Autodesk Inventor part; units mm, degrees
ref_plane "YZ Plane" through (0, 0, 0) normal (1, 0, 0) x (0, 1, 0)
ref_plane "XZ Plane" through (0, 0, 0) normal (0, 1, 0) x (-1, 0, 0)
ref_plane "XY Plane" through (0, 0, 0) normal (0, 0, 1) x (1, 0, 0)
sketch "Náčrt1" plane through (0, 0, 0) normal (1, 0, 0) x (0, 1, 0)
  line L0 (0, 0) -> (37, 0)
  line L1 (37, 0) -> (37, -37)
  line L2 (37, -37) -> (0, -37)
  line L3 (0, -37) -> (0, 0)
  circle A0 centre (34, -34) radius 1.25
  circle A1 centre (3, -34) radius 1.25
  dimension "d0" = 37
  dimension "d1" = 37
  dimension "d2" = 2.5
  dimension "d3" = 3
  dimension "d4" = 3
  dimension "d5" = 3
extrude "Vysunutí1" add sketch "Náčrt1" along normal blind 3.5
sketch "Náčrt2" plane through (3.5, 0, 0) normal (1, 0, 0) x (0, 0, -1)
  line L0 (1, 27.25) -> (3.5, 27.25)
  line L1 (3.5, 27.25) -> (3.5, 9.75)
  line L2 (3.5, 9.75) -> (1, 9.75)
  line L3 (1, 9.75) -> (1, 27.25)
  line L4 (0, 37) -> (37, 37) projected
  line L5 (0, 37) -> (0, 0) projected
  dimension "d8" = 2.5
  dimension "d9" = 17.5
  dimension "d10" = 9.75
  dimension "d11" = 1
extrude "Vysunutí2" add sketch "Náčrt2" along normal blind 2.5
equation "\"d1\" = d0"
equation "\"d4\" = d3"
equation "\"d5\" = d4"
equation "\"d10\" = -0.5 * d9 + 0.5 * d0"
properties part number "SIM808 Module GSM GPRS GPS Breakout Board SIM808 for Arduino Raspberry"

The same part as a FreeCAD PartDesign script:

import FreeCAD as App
import Part
import Sketcher
Q = App.Units.Quantity

doc = App.newDocument("Part")
body = doc.addObject("PartDesign::Body", "Body")

sketch1 = body.newObject("Sketcher::SketchObject", "Sketch")
sketch1.AttachmentSupport = (doc.getObject("YZ_Plane"), [""])
sketch1.MapMode = "FlatFace"
sketch1.addGeometry([
    Part.LineSegment(App.Vector(37, 0, 0), App.Vector(0, 0, 0)),
    Part.LineSegment(App.Vector(0, 0, 0), App.Vector(0, -37, 0)),
    Part.LineSegment(App.Vector(0, -37, 0), App.Vector(37, -37, 0)),
    Part.LineSegment(App.Vector(37, -37, 0), App.Vector(37, 0, 0)),
    Part.Circle(App.Vector(3, -34, 0), App.Vector(0, 0, 1), 1.2),
    Part.Circle(App.Vector(34, -34, 0), App.Vector(0, 0, 1), 1.2),
], False)
sketch1.addConstraint([
    Sketcher.Constraint("Coincident", 0, 2, 1, 1),
    Sketcher.Constraint("Coincident", 1, 2, 2, 1),
    Sketcher.Constraint("Coincident", 2, 2, 3, 1),
    Sketcher.Constraint("Coincident", 3, 2, 0, 1),
    Sketcher.Constraint("Horizontal", 0),
    Sketcher.Constraint("Vertical", 1),
    Sketcher.Constraint("Horizontal", 2),
    Sketcher.Constraint("Vertical", 3),
    Sketcher.Constraint("Coincident", 0, 2, -1, 1),
    Sketcher.Constraint("Equal", 4, 5),
    Sketcher.Constraint("Horizontal", 4, 3, 5, 3),
    Sketcher.Constraint("Equal", 2, 1),
    Sketcher.Constraint("Diameter", 4, Q("2.5 mm")),
    Sketcher.Constraint("DistanceX", 0, 2, 0, 1, Q("37 mm")),
    Sketcher.Constraint("DistanceX", -1, 1, 4, 3, Q("3 mm")),
    Sketcher.Constraint("DistanceY", 1, 2, 4, 3, Q("3 mm")),
    Sketcher.Constraint("DistanceX", 5, 3, 2, 2, Q("3 mm")),
])
pad1 = body.newObject("PartDesign::Pad", "Pad")
pad1.Profile = sketch1
pad1.Length = 3.5

sketch2 = body.newObject("Sketcher::SketchObject", "Sketch001")
sketch2.AttachmentSupport = (doc.getObject("YZ_Plane"), [""])
sketch2.MapMode = "FlatFace"
sketch2.AttachmentOffset = App.Placement(App.Vector(0, 0, 3.5), App.Rotation())
sketch2.addGeometry([
    Part.LineSegment(App.Vector(27.2, -3.5, 0), App.Vector(27.2, -1, 0)),
    Part.LineSegment(App.Vector(27.2, -1, 0), App.Vector(9.8, -1, 0)),
    Part.LineSegment(App.Vector(9.8, -1, 0), App.Vector(9.8, -3.5, 0)),
    Part.LineSegment(App.Vector(9.8, -3.5, 0), App.Vector(27.2, -3.5, 0)),
], False)
sketch2.addConstraint([
    Sketcher.Constraint("Coincident", 0, 2, 1, 1),
    Sketcher.Constraint("Coincident", 1, 2, 2, 1),
    Sketcher.Constraint("Coincident", 2, 2, 3, 1),
    Sketcher.Constraint("Coincident", 3, 2, 0, 1),
    Sketcher.Constraint("Vertical", 0),
    Sketcher.Constraint("Horizontal", 1),
    Sketcher.Constraint("Vertical", 2),
    Sketcher.Constraint("Horizontal", 3),
    Sketcher.Constraint("DistanceX", 1, 2, 1, 1, Q("17.5 mm")),
    Sketcher.Constraint("DistanceY", 0, 1, 0, 2, Q("2.5 mm")),
    Sketcher.Constraint("DistanceY", 0, 2, -1, 1, Q("1 mm")),
    Sketcher.Constraint("DistanceX", -1, 1, 1, 2, Q("9.75 mm")),
])
pad2 = body.newObject("PartDesign::Pad", "Pad001")
pad2.Profile = sketch2
pad2.Length = 2.5

doc.recompute()
